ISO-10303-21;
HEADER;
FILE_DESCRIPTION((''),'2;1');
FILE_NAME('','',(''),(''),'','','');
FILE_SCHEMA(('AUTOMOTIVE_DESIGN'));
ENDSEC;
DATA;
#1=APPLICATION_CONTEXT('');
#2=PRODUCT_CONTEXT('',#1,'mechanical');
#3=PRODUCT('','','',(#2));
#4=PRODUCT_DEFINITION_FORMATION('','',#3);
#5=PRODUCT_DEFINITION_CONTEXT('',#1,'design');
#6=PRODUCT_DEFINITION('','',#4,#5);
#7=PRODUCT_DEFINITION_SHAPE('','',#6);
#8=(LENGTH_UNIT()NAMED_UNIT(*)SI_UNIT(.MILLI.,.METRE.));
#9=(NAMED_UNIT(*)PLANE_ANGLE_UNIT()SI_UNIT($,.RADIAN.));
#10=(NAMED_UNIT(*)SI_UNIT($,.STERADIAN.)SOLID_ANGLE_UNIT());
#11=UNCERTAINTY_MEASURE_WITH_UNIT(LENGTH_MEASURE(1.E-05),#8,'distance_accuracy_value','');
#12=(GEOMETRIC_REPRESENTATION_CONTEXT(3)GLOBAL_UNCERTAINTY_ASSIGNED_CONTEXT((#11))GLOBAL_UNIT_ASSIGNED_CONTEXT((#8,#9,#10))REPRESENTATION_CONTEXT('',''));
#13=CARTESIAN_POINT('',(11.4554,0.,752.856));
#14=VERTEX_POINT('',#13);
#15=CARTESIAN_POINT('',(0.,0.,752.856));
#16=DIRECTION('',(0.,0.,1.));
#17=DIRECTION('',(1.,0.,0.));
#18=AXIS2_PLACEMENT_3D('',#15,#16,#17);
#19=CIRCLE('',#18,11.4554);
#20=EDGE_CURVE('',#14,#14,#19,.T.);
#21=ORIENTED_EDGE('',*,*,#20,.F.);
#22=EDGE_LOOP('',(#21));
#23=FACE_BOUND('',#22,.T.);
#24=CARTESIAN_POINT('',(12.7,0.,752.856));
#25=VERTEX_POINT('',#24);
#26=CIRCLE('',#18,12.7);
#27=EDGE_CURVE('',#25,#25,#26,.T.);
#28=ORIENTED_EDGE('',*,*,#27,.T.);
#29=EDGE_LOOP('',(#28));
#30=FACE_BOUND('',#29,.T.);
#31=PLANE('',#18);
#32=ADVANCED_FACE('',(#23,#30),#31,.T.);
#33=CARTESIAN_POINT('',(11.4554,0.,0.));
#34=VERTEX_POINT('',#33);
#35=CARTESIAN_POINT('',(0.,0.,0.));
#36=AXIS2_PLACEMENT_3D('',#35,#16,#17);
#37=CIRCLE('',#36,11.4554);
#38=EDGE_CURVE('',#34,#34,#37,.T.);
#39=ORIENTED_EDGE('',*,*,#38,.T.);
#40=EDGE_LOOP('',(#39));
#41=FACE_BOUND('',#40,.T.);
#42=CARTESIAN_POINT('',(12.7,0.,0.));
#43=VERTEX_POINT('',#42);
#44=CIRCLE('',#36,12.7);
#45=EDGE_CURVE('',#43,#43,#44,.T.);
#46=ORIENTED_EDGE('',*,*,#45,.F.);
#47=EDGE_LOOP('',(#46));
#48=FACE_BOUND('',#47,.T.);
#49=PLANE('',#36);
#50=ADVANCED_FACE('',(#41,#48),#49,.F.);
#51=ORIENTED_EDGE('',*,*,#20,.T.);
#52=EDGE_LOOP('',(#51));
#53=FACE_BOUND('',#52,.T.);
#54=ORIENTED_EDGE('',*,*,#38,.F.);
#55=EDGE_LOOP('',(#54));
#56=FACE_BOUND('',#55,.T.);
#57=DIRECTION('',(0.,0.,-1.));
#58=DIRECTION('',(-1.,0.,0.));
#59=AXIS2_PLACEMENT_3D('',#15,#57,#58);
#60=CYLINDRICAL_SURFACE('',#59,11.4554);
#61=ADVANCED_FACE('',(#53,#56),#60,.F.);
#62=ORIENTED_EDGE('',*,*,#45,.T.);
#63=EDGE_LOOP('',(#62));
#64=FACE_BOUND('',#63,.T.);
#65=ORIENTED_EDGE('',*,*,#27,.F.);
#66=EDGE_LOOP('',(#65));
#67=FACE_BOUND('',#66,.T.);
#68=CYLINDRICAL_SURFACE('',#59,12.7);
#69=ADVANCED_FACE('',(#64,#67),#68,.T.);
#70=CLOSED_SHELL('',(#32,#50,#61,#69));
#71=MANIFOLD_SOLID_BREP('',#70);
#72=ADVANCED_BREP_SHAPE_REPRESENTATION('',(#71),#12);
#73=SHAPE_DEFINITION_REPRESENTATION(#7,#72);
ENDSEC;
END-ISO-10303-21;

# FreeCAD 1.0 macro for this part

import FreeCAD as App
import Part
import Sketcher
from FreeCAD import Vector
Q = App.Units.Quantity

doc = App.newDocument("Part")
body = doc.addObject("PartDesign::Body", "Body")

# Sketch on XY plane
sketch1 = body.newObject("Sketcher::SketchObject", "Sketch")
sketch1.AttachmentSupport = (doc.getObject("XY_Plane"), [""])
sketch1.MapMode = "FlatFace"
sketch1.addGeometry(Part.Circle(Vector(0, 0, 0), Vector(0, 0, 1), 12.7), False)
sketch1.addGeometry(Part.Circle(Vector(0, 0, 0), Vector(0, 0, 1), 11.4554), False)
sketch1.addConstraint(Sketcher.Constraint("Coincident", 0, 3, -1, 1))
sketch1.addConstraint(Sketcher.Constraint("Coincident", 1, 3, -1, 1))
sketch1.addConstraint(Sketcher.Constraint("Diameter", 0, Q("1 in")))
sketch1.addConstraint(Sketcher.Constraint("Diameter", 1, Q("0.902 in")))
pad1 = body.newObject("PartDesign::Pad", "Pad")
pad1.Profile = sketch1
pad1.Length = Q("29.64 in")

doc.recompute()
